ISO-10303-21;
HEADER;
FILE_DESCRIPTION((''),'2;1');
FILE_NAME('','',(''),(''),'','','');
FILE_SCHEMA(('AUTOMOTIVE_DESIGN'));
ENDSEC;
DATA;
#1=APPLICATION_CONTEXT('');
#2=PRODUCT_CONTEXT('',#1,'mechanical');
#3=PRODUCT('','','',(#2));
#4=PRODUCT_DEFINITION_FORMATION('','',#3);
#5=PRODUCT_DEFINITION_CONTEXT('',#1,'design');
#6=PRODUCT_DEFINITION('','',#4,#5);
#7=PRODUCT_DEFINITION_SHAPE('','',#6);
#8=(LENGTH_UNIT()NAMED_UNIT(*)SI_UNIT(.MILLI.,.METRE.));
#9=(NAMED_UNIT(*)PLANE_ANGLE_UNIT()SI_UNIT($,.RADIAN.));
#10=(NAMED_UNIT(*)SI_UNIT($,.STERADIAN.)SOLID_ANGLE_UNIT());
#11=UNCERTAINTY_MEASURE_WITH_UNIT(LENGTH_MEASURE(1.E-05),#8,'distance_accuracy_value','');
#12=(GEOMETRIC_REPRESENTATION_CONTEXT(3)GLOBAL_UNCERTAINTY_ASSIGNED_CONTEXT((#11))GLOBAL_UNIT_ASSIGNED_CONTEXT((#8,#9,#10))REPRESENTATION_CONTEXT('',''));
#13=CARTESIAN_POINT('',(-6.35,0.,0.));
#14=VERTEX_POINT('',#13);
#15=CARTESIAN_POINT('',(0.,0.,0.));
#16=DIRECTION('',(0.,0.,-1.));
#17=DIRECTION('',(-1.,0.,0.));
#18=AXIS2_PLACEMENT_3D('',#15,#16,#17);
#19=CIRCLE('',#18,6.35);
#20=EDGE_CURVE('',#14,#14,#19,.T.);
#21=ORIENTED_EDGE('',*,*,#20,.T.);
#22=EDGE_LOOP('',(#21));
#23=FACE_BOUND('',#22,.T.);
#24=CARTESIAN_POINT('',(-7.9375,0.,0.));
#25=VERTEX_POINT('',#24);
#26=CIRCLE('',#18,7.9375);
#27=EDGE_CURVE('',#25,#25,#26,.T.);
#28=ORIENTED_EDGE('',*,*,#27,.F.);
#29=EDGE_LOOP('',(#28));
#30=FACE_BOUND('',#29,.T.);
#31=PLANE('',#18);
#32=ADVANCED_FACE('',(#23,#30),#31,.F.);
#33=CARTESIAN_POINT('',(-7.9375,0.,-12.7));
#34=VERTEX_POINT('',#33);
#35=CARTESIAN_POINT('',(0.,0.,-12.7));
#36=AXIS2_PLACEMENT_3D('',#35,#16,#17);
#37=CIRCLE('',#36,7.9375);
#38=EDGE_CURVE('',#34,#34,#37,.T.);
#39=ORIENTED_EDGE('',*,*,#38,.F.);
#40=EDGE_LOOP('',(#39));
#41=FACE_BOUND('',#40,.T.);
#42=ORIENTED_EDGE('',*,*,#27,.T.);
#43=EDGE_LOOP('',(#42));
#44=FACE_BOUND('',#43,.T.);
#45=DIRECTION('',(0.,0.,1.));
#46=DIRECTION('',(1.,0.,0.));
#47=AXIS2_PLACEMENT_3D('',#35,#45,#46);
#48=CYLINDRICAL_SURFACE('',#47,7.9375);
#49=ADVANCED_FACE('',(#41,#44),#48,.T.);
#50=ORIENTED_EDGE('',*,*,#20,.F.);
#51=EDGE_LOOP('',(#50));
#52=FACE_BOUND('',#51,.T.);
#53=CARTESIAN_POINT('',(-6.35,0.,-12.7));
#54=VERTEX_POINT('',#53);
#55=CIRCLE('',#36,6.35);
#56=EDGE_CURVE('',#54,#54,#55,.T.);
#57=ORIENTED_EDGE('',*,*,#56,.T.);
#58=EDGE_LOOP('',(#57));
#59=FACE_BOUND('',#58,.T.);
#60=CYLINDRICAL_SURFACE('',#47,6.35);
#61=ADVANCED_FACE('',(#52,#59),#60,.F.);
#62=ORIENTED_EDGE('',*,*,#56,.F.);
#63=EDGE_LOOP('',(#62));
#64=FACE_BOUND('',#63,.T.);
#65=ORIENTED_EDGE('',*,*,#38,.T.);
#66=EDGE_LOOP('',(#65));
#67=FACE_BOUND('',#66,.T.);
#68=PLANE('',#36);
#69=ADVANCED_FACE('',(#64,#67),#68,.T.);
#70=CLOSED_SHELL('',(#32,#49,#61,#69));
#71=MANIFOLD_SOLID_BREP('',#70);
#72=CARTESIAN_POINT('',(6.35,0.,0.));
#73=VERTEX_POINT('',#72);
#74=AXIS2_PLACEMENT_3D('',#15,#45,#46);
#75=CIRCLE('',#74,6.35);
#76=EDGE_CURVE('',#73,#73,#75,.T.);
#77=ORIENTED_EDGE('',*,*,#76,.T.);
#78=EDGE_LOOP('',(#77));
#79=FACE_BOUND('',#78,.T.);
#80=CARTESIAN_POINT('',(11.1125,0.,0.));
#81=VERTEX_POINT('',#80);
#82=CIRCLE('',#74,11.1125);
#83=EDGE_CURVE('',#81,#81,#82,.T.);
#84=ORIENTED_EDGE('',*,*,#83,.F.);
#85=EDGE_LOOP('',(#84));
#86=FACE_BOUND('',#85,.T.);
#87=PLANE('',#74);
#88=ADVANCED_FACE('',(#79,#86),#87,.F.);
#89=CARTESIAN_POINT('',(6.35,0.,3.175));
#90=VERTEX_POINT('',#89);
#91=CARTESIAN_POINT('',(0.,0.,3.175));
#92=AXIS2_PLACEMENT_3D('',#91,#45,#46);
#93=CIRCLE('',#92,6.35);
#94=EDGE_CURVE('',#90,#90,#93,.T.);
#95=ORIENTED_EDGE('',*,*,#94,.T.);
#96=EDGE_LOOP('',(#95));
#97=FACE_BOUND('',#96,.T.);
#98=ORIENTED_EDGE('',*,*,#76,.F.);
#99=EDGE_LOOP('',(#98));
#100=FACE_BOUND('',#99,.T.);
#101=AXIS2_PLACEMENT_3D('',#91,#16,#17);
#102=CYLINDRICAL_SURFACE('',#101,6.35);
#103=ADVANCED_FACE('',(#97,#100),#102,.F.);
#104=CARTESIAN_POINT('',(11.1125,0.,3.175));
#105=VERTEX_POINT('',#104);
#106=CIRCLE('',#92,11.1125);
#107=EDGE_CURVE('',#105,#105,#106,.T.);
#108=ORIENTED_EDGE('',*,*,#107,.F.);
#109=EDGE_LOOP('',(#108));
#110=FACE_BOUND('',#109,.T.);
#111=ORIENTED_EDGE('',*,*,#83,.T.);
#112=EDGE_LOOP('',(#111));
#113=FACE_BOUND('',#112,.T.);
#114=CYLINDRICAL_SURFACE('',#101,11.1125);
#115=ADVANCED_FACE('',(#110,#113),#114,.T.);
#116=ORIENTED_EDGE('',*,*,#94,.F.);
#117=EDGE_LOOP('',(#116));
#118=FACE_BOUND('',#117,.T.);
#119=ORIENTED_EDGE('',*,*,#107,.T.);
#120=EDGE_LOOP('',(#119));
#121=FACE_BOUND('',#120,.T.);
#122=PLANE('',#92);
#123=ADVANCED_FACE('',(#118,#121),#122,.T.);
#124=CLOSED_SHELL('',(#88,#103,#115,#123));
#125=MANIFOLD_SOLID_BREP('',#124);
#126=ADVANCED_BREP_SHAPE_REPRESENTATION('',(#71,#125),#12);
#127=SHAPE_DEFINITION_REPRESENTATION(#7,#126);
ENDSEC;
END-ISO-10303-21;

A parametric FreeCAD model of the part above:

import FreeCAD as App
import Part
import Sketcher

V = App.Vector
Q = App.Units.Quantity

doc = App.newDocument("Part")
body = doc.addObject("PartDesign::Body", "Body")

# Sketch on XY plane
sketch1 = body.newObject("Sketcher::SketchObject", "Sketch")
sketch1.AttachmentSupport = (doc.getObject("XY_Plane"), [""])
sketch1.MapMode = "FlatFace"
sketch1.addGeometry([
    Part.Circle(V(0, 0, 0), V(0, 0, 1), 11),
    Part.Circle(V(0, 0, 0), V(0, 0, 1), 6),
], False)
sketch1.addConstraint([
    Sketcher.Constraint("Coincident", 0, 3, -1, 1),
    Sketcher.Constraint("Coincident", 1, 3, -1, 1),
    Sketcher.Constraint("Diameter", 1, Q("0.5 in")),
    Sketcher.Constraint("Diameter", 0, Q("0.875 in")),
])
pad1 = body.newObject("PartDesign::Pad", "Pad")
pad1.Profile = sketch1
pad1.Length = Q("0.125 in")
body2 = doc.addObject("PartDesign::Body", "Body001")

# Sketch on XY plane
sketch2 = body2.newObject("Sketcher::SketchObject", "Sketch001")
sketch2.AttachmentSupport = (doc.getObject("XY_Plane001"), [""])
sketch2.MapMode = "FlatFace"
sketch2.addGeometry([
    Part.Circle(V(0, 0, 0), V(0, 0, 1), 8),
    Part.Circle(V(0, 0, 0), V(0, 0, 1), 6),
], False)
sketch2.addConstraint([
    Sketcher.Constraint("Coincident", 0, 3, -1, 1),
    Sketcher.Constraint("Coincident", 1, 3, -1, 1),
    Sketcher.Constraint("Diameter", 1, Q("0.5 in")),
    Sketcher.Constraint("Diameter", 0, Q("0.625 in")),
])
pad2 = body2.newObject("PartDesign::Pad", "Pad001")
pad2.Profile = sketch2
pad2.Length = Q("0.5 in")
pad2.Reversed = True

doc.recompute()
